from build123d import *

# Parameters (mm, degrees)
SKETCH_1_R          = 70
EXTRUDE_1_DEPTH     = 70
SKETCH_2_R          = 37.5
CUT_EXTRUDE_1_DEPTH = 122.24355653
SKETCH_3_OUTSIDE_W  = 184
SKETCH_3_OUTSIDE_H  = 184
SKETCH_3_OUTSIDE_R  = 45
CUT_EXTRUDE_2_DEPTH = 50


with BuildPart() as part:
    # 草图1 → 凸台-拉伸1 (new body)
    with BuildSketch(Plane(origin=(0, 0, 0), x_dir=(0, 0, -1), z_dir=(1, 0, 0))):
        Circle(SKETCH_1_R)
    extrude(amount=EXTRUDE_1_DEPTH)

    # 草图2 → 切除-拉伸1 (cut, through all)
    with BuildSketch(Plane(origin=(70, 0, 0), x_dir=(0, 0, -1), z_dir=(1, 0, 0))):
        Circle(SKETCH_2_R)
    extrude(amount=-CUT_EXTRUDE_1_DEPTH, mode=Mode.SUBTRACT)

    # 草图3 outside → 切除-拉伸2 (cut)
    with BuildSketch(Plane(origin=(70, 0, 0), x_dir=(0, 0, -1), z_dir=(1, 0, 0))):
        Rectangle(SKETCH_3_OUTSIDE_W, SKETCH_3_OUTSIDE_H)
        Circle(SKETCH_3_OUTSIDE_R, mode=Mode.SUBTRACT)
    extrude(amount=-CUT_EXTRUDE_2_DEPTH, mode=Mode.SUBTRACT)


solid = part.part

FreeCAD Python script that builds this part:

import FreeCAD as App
import Part
import Sketcher

doc = App.newDocument("Part")
body = doc.addObject("PartDesign::Body", "Body")

sketch1 = body.newObject("Sketcher::SketchObject", "Sketch")
sketch1.AttachmentSupport = (doc.getObject("YZ_Plane"), [""])
sketch1.MapMode = "FlatFace"
sketch1.addGeometry(Part.Circle(App.Vector(0, 0, 0), App.Vector(0, 0, 1), 70), False)
sketch1.addConstraint([
    Sketcher.Constraint("Coincident", 0, 3, -1, 1),
    Sketcher.Constraint("Diameter", 0, 140.0),
])
pad1 = body.newObject("PartDesign::Pad", "Pad")
pad1.Profile = sketch1
pad1.Length = 70

sketch2 = body.newObject("Sketcher::SketchObject", "Sketch001")
sketch2.AttachmentSupport = (doc.getObject("YZ_Plane"), [""])
sketch2.MapMode = "FlatFace"
sketch2.AttachmentOffset = App.Placement(App.Vector(0, 0, 70), App.Rotation())
sketch2.addGeometry(Part.Circle(App.Vector(0, 0, 0), App.Vector(0, 0, 1), 38), False)
sketch2.addConstraint([
    Sketcher.Constraint("Coincident", 0, 3, -1, 1),
    Sketcher.Constraint("Diameter", 0, 75.0),
])
pocket1 = body.newObject("PartDesign::Pocket", "Pocket")
pocket1.Profile = sketch2
pocket1.Type = "ThroughAll"

sketch3 = body.newObject("Sketcher::SketchObject", "Sketch002")
sketch3.AttachmentSupport = (doc.getObject("YZ_Plane"), [""])
sketch3.MapMode = "FlatFace"
sketch3.AttachmentOffset = App.Placement(App.Vector(0, 0, 70), App.Rotation())
sketch3.addGeometry([
    Part.LineSegment(App.Vector(92, 92, 0), App.Vector(-92, 92, 0)),
    Part.LineSegment(App.Vector(-92, 92, 0), App.Vector(-92, -92, 0)),
    Part.LineSegment(App.Vector(-92, -92, 0), App.Vector(92, -92, 0)),
    Part.LineSegment(App.Vector(92, -92, 0), App.Vector(92, 92, 0)),
    Part.Circle(App.Vector(0, 0, 0), App.Vector(0, 0, 1), 45),
], False)
sketch3.addConstraint([
    Sketcher.Constraint("Coincident", 0, 2, 1, 1),
    Sketcher.Constraint("Coincident", 1, 2, 2, 1),
    Sketcher.Constraint("Coincident", 2, 2, 3, 1),
    Sketcher.Constraint("Coincident", 3, 2, 0, 1),
    Sketcher.Constraint("Horizontal", 0),
    Sketcher.Constraint("Vertical", 1),
    Sketcher.Constraint("Horizontal", 2),
    Sketcher.Constraint("Vertical", 3),
    Sketcher.Constraint("Coincident", 4, 3, -1, 1),
    Sketcher.Constraint("Symmetric", 0, 2, 2, 2, -1, 1),
    Sketcher.Constraint("Equal", 2, 1),
    Sketcher.Constraint("Diameter", 4, 90.0),
    Sketcher.Constraint("DistanceX", 0, 2, 0, 1, 184.0),
])
pocket2 = body.newObject("PartDesign::Pocket", "Pocket001")
pocket2.Profile = sketch3
pocket2.Length = 50

doc.recompute()
